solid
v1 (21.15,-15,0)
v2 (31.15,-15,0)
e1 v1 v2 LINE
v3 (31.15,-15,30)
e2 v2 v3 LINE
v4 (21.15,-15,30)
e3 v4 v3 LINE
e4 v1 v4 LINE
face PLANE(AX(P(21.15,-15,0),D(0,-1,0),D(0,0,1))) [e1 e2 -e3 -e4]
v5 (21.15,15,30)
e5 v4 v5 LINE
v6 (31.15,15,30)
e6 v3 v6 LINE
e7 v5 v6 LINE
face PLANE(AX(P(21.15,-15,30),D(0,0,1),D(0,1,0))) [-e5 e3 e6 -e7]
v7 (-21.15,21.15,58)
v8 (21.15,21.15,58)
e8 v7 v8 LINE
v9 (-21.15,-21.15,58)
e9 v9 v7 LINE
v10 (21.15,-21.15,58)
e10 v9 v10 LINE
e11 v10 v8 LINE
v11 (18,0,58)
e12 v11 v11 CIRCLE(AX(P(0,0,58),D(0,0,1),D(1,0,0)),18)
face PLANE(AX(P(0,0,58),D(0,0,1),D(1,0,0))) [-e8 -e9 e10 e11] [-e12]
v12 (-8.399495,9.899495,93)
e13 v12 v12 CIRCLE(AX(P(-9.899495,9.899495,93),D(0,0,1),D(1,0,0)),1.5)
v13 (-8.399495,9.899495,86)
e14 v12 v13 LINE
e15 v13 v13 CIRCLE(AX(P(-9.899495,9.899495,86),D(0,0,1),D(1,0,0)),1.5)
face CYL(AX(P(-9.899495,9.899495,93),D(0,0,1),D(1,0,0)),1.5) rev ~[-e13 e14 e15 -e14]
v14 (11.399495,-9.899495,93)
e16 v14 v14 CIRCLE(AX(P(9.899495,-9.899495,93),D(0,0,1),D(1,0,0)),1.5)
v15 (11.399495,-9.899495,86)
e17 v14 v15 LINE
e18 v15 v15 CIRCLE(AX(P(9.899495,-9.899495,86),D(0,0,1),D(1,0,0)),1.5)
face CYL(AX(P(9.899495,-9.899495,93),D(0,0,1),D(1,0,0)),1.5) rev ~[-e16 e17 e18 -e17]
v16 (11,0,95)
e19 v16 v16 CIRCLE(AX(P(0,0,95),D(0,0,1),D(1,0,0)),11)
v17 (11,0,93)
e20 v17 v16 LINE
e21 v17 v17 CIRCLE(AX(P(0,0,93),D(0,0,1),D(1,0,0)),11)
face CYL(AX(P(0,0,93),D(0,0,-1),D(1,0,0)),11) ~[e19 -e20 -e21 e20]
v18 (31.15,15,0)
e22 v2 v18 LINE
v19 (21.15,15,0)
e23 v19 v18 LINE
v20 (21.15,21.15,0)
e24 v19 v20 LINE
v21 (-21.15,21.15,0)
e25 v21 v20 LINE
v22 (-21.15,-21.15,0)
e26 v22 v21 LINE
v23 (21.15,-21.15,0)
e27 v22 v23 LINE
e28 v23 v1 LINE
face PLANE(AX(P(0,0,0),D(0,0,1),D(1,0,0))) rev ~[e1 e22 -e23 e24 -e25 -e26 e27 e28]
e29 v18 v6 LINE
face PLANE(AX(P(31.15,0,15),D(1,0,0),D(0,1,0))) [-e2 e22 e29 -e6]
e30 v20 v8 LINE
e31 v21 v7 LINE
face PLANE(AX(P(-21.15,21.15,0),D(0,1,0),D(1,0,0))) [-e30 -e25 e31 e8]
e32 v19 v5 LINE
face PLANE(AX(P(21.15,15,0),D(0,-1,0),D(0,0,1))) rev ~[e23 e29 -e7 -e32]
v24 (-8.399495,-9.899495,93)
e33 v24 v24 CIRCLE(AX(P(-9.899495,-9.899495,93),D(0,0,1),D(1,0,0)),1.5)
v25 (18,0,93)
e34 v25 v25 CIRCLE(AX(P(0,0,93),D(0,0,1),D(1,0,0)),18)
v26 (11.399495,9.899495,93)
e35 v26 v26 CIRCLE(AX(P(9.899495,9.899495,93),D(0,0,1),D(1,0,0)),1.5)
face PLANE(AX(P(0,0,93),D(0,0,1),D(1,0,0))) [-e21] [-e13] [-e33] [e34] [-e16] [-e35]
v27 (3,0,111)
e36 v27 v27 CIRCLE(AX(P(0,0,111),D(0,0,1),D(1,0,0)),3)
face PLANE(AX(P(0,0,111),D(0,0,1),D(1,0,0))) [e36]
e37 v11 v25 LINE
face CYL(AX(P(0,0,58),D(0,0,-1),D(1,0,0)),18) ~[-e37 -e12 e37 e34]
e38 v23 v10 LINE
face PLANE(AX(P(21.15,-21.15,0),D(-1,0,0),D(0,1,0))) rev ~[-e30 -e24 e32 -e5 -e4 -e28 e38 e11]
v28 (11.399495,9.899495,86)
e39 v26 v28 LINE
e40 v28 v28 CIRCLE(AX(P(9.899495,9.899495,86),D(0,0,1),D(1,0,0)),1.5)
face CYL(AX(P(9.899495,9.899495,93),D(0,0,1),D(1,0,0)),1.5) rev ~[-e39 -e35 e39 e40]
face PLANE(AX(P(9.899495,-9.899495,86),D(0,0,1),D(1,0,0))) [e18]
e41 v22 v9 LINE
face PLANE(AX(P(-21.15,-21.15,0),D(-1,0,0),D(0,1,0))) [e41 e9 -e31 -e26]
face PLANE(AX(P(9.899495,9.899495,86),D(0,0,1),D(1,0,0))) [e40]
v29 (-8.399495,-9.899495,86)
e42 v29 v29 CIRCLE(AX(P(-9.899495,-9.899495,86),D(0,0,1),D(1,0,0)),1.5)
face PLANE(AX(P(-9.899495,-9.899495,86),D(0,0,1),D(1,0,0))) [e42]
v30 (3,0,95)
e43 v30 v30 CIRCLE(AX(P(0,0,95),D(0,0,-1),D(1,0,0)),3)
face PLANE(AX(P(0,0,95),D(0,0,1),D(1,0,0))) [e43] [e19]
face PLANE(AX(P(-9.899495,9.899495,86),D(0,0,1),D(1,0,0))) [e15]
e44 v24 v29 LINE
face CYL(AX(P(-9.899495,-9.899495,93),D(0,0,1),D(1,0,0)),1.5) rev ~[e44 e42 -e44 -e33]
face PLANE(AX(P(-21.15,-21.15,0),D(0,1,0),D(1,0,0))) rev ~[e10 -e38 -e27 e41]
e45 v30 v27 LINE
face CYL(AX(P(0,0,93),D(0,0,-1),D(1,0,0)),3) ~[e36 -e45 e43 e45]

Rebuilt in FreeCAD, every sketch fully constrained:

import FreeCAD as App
import Part
import Sketcher

V = App.Vector


def add_polygon(sketch, points):
    """Adds a closed chain of lines whose ends are joined by coincident constraints."""
    first, n = sketch.GeometryCount, len(points)
    for a, b in zip(points, points[1:] + points[:1]):
        sketch.addGeometry(Part.LineSegment(App.Vector(*a, 0), App.Vector(*b, 0)), False)
    for i in range(n):
        sketch.addConstraint(Sketcher.Constraint("Coincident", first + i, 2, first + (i + 1) % n, 1))

doc = App.newDocument("Part")
body = doc.addObject("PartDesign::Body", "Body")

sketch1 = body.newObject("Sketcher::SketchObject", "Sketch")
sketch1.AttachmentSupport = (doc.getObject("XY_Plane"), [""])
sketch1.MapMode = "FlatFace"
add_polygon(sketch1, [(-21, 21), (-21, -21), (21, -21), (21, 21)])
sketch1.addConstraint([
    Sketcher.Constraint("Vertical", 0),
    Sketcher.Constraint("Horizontal", 1),
    Sketcher.Constraint("Vertical", 2),
    Sketcher.Constraint("Horizontal", 3),
    Sketcher.Constraint("Symmetric", 0, 2, 2, 2, -1, 1),
    Sketcher.Constraint("Equal", 3, 0),
    Sketcher.Constraint("DistanceX", 1, 1, 1, 2, 42.3),
])
pad1 = body.newObject("PartDesign::Pad", "Pad")
pad1.Profile = sketch1
pad1.Length = 58

sketch2 = body.newObject("Sketcher::SketchObject", "Sketch001")
sketch2.AttachmentSupport = (doc.getObject("XY_Plane"), [""])
sketch2.MapMode = "FlatFace"
sketch2.AttachmentOffset = App.Placement(V(0, 0, 58), App.Rotation())
sketch2.addGeometry(Part.Circle(V(0, 0, 0), V(0, 0, 1), 18), False)
sketch2.addConstraint([
    Sketcher.Constraint("Coincident", 0, 3, -1, 1),
    Sketcher.Constraint("Diameter", 0, 36.0),
])
pad2 = body.newObject("PartDesign::Pad", "Pad001")
pad2.Profile = sketch2
pad2.Length = 35

sketch3 = body.newObject("Sketcher::SketchObject", "Sketch002")
sketch3.AttachmentSupport = (doc.getObject("XY_Plane"), [""])
sketch3.MapMode = "FlatFace"
sketch3.AttachmentOffset = App.Placement(V(0, 0, 93), App.Rotation())
sketch3.addGeometry(Part.Circle(V(0, 0, 0), V(0, 0, 1), 3), False)
sketch3.addConstraint([
    Sketcher.Constraint("Coincident", 0, 3, -1, 1),
    Sketcher.Constraint("Diameter", 0, 6.0),
])
pad3 = body.newObject("PartDesign::Pad", "Pad002")
pad3.Profile = sketch3
pad3.Length = 18

sketch4 = body.newObject("Sketcher::SketchObject", "Sketch003")
sketch4.AttachmentSupport = (doc.getObject("XY_Plane"), [""])
sketch4.MapMode = "FlatFace"
sketch4.AttachmentOffset = App.Placement(V(0, 0, 93), App.Rotation())
sketch4.addGeometry(Part.Circle(V(0, 0, 0), V(0, 0, 1), 11), False)
sketch4.addConstraint([
    Sketcher.Constraint("Coincident", 0, 3, -1, 1),
    Sketcher.Constraint("Diameter", 0, 22.0),
])
pad4 = body.newObject("PartDesign::Pad", "Pad003")
pad4.Profile = sketch4
pad4.Length = 2

sketch5 = body.newObject("Sketcher::SketchObject", "Sketch004")
sketch5.AttachmentSupport = (doc.getObject("XY_Plane"), [""])
sketch5.MapMode = "FlatFace"
sketch5.AttachmentOffset = App.Placement(V(0, 0, 93), App.Rotation())
sketch5.addGeometry([
    Part.Circle(V(-9.9, 9.9, 0), V(0, 0, 1), 1.5),
    Part.Circle(V(9.9, 9.9, 0), V(0, 0, 1), 1.5),
    Part.Circle(V(9.9, -9.9, 0), V(0, 0, 1), 1.5),
    Part.Circle(V(-9.9, -9.9, 0), V(0, 0, 1), 1.5),
], False)
sketch5.addConstraint([
    Sketcher.Constraint("Equal", 0, 1),
    Sketcher.Constraint("Equal", 1, 2),
    Sketcher.Constraint("Equal", 2, 3),
    Sketcher.Constraint("Symmetric", 0, 3, 2, 3, -1, 1),
    Sketcher.Constraint("Symmetric", 1, 3, 3, 3, -1, 1),
    Sketcher.Constraint("Symmetric", 0, 3, 1, 3, -2),
    Sketcher.Constraint("Diameter", 0, 3.0),
    Sketcher.Constraint("DistanceX", 0, 3, 1, 3, 19.79899),
    Sketcher.Constraint("DistanceY", 2, 3, 1, 3, 19.79899),
])
pocket1 = body.newObject("PartDesign::Pocket", "Pocket")
pocket1.Profile = sketch5
pocket1.Length = 7

sketch6 = body.newObject("Sketcher::SketchObject", "Sketch005")
sketch6.AttachmentSupport = (doc.getObject("YZ_Plane"), [""])
sketch6.MapMode = "FlatFace"
sketch6.AttachmentOffset = App.Placement(V(0, 0, 21.15), App.Rotation())
add_polygon(sketch6, [(-15, 30), (-15, 0), (15, 0), (15, 30)])
sketch6.addConstraint([
    Sketcher.Constraint("Vertical", 0),
    Sketcher.Constraint("Horizontal", 1),
    Sketcher.Constraint("Vertical", 2),
    Sketcher.Constraint("Horizontal", 3),
    Sketcher.Constraint("Symmetric", 0, 2, 1, 2, -1, 1),
    Sketcher.Constraint("Equal", 3, 0),
    Sketcher.Constraint("DistanceX", 1, 1, 1, 2, 30.0),
])
pad5 = body.newObject("PartDesign::Pad", "Pad004")
pad5.Profile = sketch6
pad5.Length = 10

doc.recompute()
